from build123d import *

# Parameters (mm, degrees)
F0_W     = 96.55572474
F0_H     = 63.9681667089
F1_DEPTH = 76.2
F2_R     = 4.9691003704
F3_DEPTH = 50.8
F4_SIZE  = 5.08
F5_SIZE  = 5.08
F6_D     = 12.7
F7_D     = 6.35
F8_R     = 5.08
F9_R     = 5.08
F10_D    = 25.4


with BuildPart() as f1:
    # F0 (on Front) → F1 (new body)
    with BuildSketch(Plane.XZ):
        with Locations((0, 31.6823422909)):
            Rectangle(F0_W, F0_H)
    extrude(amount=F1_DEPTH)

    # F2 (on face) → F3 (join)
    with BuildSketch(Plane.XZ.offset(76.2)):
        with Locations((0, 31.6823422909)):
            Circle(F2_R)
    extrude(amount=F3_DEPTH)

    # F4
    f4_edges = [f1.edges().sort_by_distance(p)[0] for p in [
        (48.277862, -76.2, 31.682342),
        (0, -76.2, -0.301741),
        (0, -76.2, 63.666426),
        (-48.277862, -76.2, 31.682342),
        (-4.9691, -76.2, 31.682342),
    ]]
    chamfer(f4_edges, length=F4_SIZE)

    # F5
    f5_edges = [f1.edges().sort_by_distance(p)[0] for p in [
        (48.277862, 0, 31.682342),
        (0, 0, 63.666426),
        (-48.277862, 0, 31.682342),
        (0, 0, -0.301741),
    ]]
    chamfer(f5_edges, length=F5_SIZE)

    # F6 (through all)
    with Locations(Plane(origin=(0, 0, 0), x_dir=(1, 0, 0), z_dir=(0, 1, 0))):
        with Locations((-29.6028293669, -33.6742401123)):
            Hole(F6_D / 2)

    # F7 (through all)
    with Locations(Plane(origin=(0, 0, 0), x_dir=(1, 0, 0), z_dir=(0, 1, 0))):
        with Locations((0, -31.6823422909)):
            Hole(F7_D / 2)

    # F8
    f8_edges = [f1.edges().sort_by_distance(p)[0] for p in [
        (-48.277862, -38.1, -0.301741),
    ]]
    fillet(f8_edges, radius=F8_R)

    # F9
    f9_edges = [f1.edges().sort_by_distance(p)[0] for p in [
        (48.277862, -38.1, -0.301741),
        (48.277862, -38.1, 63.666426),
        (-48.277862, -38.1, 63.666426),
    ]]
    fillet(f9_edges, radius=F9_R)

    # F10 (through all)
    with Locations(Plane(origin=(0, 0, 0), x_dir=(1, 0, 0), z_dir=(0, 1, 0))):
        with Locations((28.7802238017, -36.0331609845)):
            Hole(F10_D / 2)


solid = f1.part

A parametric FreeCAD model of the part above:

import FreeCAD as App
import Part
import Sketcher
Q = App.Units.Quantity


def edges_at(feature, points):
    """Names of the edges that pass closest to the given points."""
    edges = feature.Shape.Edges
    near = lambda p: min(range(len(edges)), key=lambda i: edges[i].distToShape(Part.Vertex(*p))[0])
    return sorted({f"Edge{near(p) + 1}" for p in points})


def add_polygon(sketch, points):
    """Adds a closed chain of lines whose ends are joined by coincident constraints."""
    first, n = sketch.GeometryCount, len(points)
    for a, b in zip(points, points[1:] + points[:1]):
        sketch.addGeometry(Part.LineSegment(App.Vector(*a, 0), App.Vector(*b, 0)), False)
    for i in range(n):
        sketch.addConstraint(Sketcher.Constraint("Coincident", first + i, 2, first + (i + 1) % n, 1))

doc = App.newDocument("Part")
body = doc.addObject("PartDesign::Body", "Body")

# Sketch on XZ plane
sketch1 = body.newObject("Sketcher::SketchObject", "Sketch")
sketch1.AttachmentSupport = (doc.getObject("XZ_Plane"), [""])
sketch1.MapMode = "FlatFace"
add_polygon(sketch1, [(-48.277862, 63.666426), (-48.277862, -0.301741), (48.277862, -0.301741), (48.277862, 63.666426)])  # lines 0-3
sketch1.addConstraint([
    Sketcher.Constraint("Vertical", 0),
    Sketcher.Constraint("Horizontal", 1),
    Sketcher.Constraint("Vertical", 2),
    Sketcher.Constraint("Horizontal", 3),
    Sketcher.Constraint("DistanceX", 1, 1, 1, 2, 96.555725),
    Sketcher.Constraint("DistanceY", 0, 2, 0, 1, 63.968167),
    Sketcher.Constraint("DistanceY", 0, 2, -1, 1, 0.301741),
    Sketcher.Constraint("DistanceX", 0, 2, -1, 1, 48.277862),
])
pad1 = body.newObject("PartDesign::Pad", "Pad")
pad1.Profile = sketch1
pad1.Length = Q("3 in")

# Sketch on XZ plane
sketch2 = body.newObject("Sketcher::SketchObject", "Sketch001")
sketch2.AttachmentSupport = (doc.getObject("XZ_Plane"), [""])
sketch2.MapMode = "FlatFace"
sketch2.AttachmentOffset = App.Placement(App.Vector(0, 0, 3 * 25.4), App.Rotation())
sketch2.addGeometry(Part.Circle(App.Vector(0, 31.682342, 0), App.Vector(0, 0, 1), 4.9691), False)
sketch2.addConstraint([
    Sketcher.Constraint("PointOnObject", 0, 3, -2),
    Sketcher.Constraint("Diameter", 0, 9.938201),
    Sketcher.Constraint("DistanceY", -1, 1, 0, 3, 31.682342),
])
pad2 = body.newObject("PartDesign::Pad", "Pad001")
pad2.Profile = sketch2
pad2.Length = Q("2 in")
doc.recompute()

chamfer = body.newObject("PartDesign::Chamfer", "Chamfer")
chamfer.Base = (pad2, edges_at(pad2, [
    (48.278, -76.2, 31.682),
    (0, -76.2, -0.302),
    (0, -76.2, 63.666),
    (-48.278, -76.2, 31.682),
    (-4.969, -76.2, 31.682),
]))
chamfer.Size = Q("0.2 in")
doc.recompute()

chamfer2 = body.newObject("PartDesign::Chamfer", "Chamfer001")
chamfer2.Base = (chamfer, edges_at(chamfer, [
    (48.278, 0, 31.682),
    (0, 0, 63.666),
    (-48.278, 0, 31.682),
    (0, 0, -0.302),
]))
chamfer2.Size = Q("0.2 in")

# Sketch on XZ plane
sketch3 = body.newObject("Sketcher::SketchObject", "Sketch002")
sketch3.AttachmentSupport = (doc.getObject("XZ_Plane"), [""])
sketch3.MapMode = "FlatFace"
sketch3.addGeometry(Part.Circle(App.Vector(-29.602829, 33.67424, 0), App.Vector(0, 0, 1), 6.35), False)
sketch3.addConstraint([
    Sketcher.Constraint("Diameter", 0, Q("0.5 in")),
    Sketcher.Constraint("DistanceX", 0, 3, -1, 1, 29.602829),
    Sketcher.Constraint("DistanceY", -1, 1, 0, 3, 33.67424),
])
doc.recompute()
hole = body.newObject("PartDesign::Hole", "Hole")
hole.Profile = sketch3
hole.ThreadType = "None"
hole.Diameter = Q("0.5 in")
hole.DepthType = "ThroughAll"
hole.Reversed = True

# Sketch on XZ plane
sketch4 = body.newObject("Sketcher::SketchObject", "Sketch003")
sketch4.AttachmentSupport = (doc.getObject("XZ_Plane"), [""])
sketch4.MapMode = "FlatFace"
sketch4.addGeometry(Part.Circle(App.Vector(0, 31.682342, 0), App.Vector(0, 0, 1), 3.175), False)
sketch4.addConstraint([
    Sketcher.Constraint("PointOnObject", 0, 3, -2),
    Sketcher.Constraint("Diameter", 0, Q("0.25 in")),
    Sketcher.Constraint("DistanceY", -1, 1, 0, 3, 31.682342),
])
doc.recompute()
hole2 = body.newObject("PartDesign::Hole", "Hole001")
hole2.Profile = sketch4
hole2.ThreadType = "None"
hole2.Diameter = Q("0.25 in")
hole2.DepthType = "ThroughAll"
hole2.Reversed = True
doc.recompute()

fillet = body.newObject("PartDesign::Fillet", "Fillet")
fillet.Base = (hole2, edges_at(hole2, [(-48.278, -38.1, -0.302)]))
fillet.Radius = Q("0.2 in")
doc.recompute()

fillet2 = body.newObject("PartDesign::Fillet", "Fillet001")
fillet2.Base = (fillet, edges_at(fillet, [(48.278, -38.1, -0.302), (48.278, -38.1, 63.666), (-48.278, -38.1, 63.666)]))
fillet2.Radius = Q("0.2 in")

# Sketch on XZ plane
sketch5 = body.newObject("Sketcher::SketchObject", "Sketch004")
sketch5.AttachmentSupport = (doc.getObject("XZ_Plane"), [""])
sketch5.MapMode = "FlatFace"
sketch5.addGeometry(Part.Circle(App.Vector(28.780224, 36.033161, 0), App.Vector(0, 0, 1), 12.7), False)
sketch5.addConstraint([
    Sketcher.Constraint("Diameter", 0, Q("1 in")),
    Sketcher.Constraint("DistanceY", -1, 1, 0, 3, 36.033161),
    Sketcher.Constraint("DistanceX", -1, 1, 0, 3, 28.780224),
])
doc.recompute()
hole3 = body.newObject("PartDesign::Hole", "Hole002")
hole3.Profile = sketch5
hole3.ThreadType = "None"
hole3.Diameter = Q("1 in")
hole3.DepthType = "ThroughAll"
hole3.Reversed = True

doc.recompute()
